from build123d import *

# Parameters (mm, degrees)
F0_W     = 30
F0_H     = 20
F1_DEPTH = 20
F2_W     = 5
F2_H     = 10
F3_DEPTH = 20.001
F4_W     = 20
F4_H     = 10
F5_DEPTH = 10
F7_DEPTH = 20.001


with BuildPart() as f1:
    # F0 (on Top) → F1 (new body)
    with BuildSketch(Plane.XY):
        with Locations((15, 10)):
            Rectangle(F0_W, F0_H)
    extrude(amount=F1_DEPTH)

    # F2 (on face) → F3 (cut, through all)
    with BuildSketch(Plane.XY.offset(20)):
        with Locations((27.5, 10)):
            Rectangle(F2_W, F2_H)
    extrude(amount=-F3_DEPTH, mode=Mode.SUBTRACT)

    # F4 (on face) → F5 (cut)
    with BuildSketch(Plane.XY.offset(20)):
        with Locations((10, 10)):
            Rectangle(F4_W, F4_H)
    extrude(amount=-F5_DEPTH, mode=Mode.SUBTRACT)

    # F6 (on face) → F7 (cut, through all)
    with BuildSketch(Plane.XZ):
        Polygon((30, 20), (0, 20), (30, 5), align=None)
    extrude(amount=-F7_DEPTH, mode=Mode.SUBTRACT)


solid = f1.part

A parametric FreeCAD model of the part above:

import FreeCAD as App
import Part
import Sketcher
Q = App.Units.Quantity


def add_polygon(sketch, points):
    """Adds a closed chain of lines whose ends are joined by coincident constraints."""
    first, n = sketch.GeometryCount, len(points)
    for a, b in zip(points, points[1:] + points[:1]):
        sketch.addGeometry(Part.LineSegment(App.Vector(*a, 0), App.Vector(*b, 0)), False)
    for i in range(n):
        sketch.addConstraint(Sketcher.Constraint("Coincident", first + i, 2, first + (i + 1) % n, 1))

doc = App.newDocument("Part")
body = doc.addObject("PartDesign::Body", "Body")

# Sketch on XY plane
sketch1 = doc.addObject("Sketcher::SketchObject", "Sketch")
body.addObject(sketch1)
sketch1.AttachmentSupport = (doc.XY_Plane, [""])
sketch1.MapMode = "FlatFace"
add_polygon(sketch1, [(0, 20), (0, 0), (30, 0), (30, 20)])  # lines 0-3
sketch1.addConstraint([
    Sketcher.Constraint("Vertical", 0),
    Sketcher.Constraint("Horizontal", 1),
    Sketcher.Constraint("Vertical", 2),
    Sketcher.Constraint("Horizontal", 3),
    Sketcher.Constraint("Coincident", 0, 2, -1, 1),
    Sketcher.Constraint("DistanceX", 1, 1, 1, 2, Q("30 mm")),
    Sketcher.Constraint("DistanceY", 0, 2, 0, 1, Q("20 mm")),
])
pad1 = doc.addObject("PartDesign::Pad", "Pad")
body.addObject(pad1)
pad1.Profile = sketch1
pad1.Length = 20

# Sketch on XY plane
sketch2 = doc.addObject("Sketcher::SketchObject", "Sketch001")
body.addObject(sketch2)
sketch2.AttachmentSupport = (doc.XY_Plane, [""])
sketch2.MapMode = "FlatFace"
sketch2.AttachmentOffset = App.Placement(App.Vector(0, 0, 20), App.Rotation())
add_polygon(sketch2, [(25, 15), (25, 5), (30, 5), (30, 15)])  # lines 0-3
sketch2.addConstraint([
    Sketcher.Constraint("Vertical", 0),
    Sketcher.Constraint("Horizontal", 1),
    Sketcher.Constraint("Vertical", 2),
    Sketcher.Constraint("Horizontal", 3),
    Sketcher.Constraint("DistanceX", 1, 1, 1, 2, Q("5 mm")),
    Sketcher.Constraint("DistanceY", 0, 2, 0, 1, Q("10 mm")),
    Sketcher.Constraint("DistanceX", -1, 1, 0, 2, Q("25 mm")),
    Sketcher.Constraint("DistanceY", -1, 1, 0, 2, Q("5 mm")),
])
pocket1 = doc.addObject("PartDesign::Pocket", "Pocket")
body.addObject(pocket1)
pocket1.Profile = sketch2
pocket1.Type = "ThroughAll"

# Sketch on XY plane
sketch3 = doc.addObject("Sketcher::SketchObject", "Sketch002")
body.addObject(sketch3)
sketch3.AttachmentSupport = (doc.XY_Plane, [""])
sketch3.MapMode = "FlatFace"
sketch3.AttachmentOffset = App.Placement(App.Vector(0, 0, 20), App.Rotation())
add_polygon(sketch3, [(0, 15), (0, 5), (20, 5), (20, 15)])  # lines 0-3
sketch3.addConstraint([
    Sketcher.Constraint("Vertical", 0),
    Sketcher.Constraint("Horizontal", 1),
    Sketcher.Constraint("Vertical", 2),
    Sketcher.Constraint("Horizontal", 3),
    Sketcher.Constraint("PointOnObject", 0, 2, -2),
    Sketcher.Constraint("DistanceX", 1, 1, 1, 2, Q("20 mm")),
    Sketcher.Constraint("DistanceY", 0, 2, 0, 1, Q("10 mm")),
    Sketcher.Constraint("DistanceY", -1, 1, 0, 2, Q("5 mm")),
])
pocket2 = doc.addObject("PartDesign::Pocket", "Pocket001")
body.addObject(pocket2)
pocket2.Profile = sketch3
pocket2.Length = 10

# Sketch on XZ plane
sketch4 = doc.addObject("Sketcher::SketchObject", "Sketch003")
body.addObject(sketch4)
sketch4.AttachmentSupport = (doc.XZ_Plane, [""])
sketch4.MapMode = "FlatFace"
add_polygon(sketch4, [(30, 20), (0, 20), (30, 5)])  # lines 0-2
sketch4.addConstraint([
    Sketcher.Constraint("Horizontal", 0),
    Sketcher.Constraint("Vertical", 2),
    Sketcher.Constraint("PointOnObject", 0, 2, -2),
    Sketcher.Constraint("DistanceX", 0, 2, 0, 1, Q("30 mm")),
    Sketcher.Constraint("DistanceY", 2, 1, 2, 2, Q("15 mm")),
    Sketcher.Constraint("DistanceY", -1, 1, 0, 2, Q("20 mm")),
])
pocket3 = doc.addObject("PartDesign::Pocket", "Pocket002")
body.addObject(pocket3)
pocket3.Profile = sketch4
pocket3.Type = "ThroughAll"

doc.recompute()
